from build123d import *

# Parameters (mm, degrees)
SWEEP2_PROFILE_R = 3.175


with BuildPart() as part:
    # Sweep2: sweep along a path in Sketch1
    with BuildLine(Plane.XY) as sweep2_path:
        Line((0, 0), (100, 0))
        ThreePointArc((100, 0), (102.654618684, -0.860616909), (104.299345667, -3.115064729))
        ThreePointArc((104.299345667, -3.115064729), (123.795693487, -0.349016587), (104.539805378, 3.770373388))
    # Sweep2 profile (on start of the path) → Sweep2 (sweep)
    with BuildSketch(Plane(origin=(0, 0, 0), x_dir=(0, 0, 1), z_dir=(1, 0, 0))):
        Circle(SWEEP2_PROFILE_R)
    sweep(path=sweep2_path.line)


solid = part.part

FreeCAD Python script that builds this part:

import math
import FreeCAD as App
import Part
import Sketcher

V = App.Vector
Q = App.Units.Quantity

doc = App.newDocument("Part")
body = doc.addObject("PartDesign::Body", "Body")

# Sketch on YZ plane
sketch1 = body.newObject("Sketcher::SketchObject", "Sketch")
sketch1.AttachmentSupport = (doc.getObject("YZ_Plane"), [""])
sketch1.MapMode = "FlatFace"
sketch1.addGeometry(Part.Circle(V(0, 0, 0), V(0, 0, 1), 3.2), False)
sketch1.addConstraint(Sketcher.Constraint("Coincident", 0, 3, -1, 1))
sketch1.addConstraint(Sketcher.Constraint("Diameter", 0, Q("6.35 mm")))

# Sketch on XY plane
sketch2 = body.newObject("Sketcher::SketchObject", "Sketch001")
sketch2.AttachmentSupport = (doc.getObject("XY_Plane"), [""])
sketch2.MapMode = "FlatFace"
sketch2.addGeometry(Part.LineSegment(V(0, 0, 0), V(100, 0, 0)), False)
sketch2.addGeometry(Part.ArcOfCircle(Part.Circle(V(100, -4.5, 0), V(0, 0, 1), 4.5), math.radians(18), math.radians(90)), False)
sketch2.addGeometry(Part.ArcOfCircle(Part.Circle(V(113.8, 0, 0), V(0, 0, 1), 10), math.radians(-162), math.radians(158)), False)
sketch2.addConstraint(Sketcher.Constraint("Tangent", 0, 2, 1, 2))
sketch2.addConstraint(Sketcher.Constraint("Tangent", 1, 1, 2, 1))
sketch2.addConstraint(Sketcher.Constraint("Horizontal", 0))
sketch2.addConstraint(Sketcher.Constraint("Coincident", 0, 1, -1, 1))
sketch2.addConstraint(Sketcher.Constraint("PointOnObject", 2, 3, -1))
sketch2.addConstraint(Sketcher.Constraint("Radius", 2, Q("10 mm")))
sketch2.addConstraint(Sketcher.Constraint("DistanceX", 0, 1, 0, 2, Q("100 mm")))
sketch2.addConstraint(Sketcher.Constraint("Radius", 1, Q("4.524465 mm")))
sketch2.addConstraint(Sketcher.Constraint("DistanceX", 1, 1, 2, 2, Q("0.24046 mm")))
doc.recompute()

additivepipe = body.newObject("PartDesign::AdditivePipe", "AdditivePipe")
additivepipe.Profile = sketch1
additivepipe.Spine = (sketch2, ["Edge1", "Edge2", "Edge3"])

doc.recompute()
